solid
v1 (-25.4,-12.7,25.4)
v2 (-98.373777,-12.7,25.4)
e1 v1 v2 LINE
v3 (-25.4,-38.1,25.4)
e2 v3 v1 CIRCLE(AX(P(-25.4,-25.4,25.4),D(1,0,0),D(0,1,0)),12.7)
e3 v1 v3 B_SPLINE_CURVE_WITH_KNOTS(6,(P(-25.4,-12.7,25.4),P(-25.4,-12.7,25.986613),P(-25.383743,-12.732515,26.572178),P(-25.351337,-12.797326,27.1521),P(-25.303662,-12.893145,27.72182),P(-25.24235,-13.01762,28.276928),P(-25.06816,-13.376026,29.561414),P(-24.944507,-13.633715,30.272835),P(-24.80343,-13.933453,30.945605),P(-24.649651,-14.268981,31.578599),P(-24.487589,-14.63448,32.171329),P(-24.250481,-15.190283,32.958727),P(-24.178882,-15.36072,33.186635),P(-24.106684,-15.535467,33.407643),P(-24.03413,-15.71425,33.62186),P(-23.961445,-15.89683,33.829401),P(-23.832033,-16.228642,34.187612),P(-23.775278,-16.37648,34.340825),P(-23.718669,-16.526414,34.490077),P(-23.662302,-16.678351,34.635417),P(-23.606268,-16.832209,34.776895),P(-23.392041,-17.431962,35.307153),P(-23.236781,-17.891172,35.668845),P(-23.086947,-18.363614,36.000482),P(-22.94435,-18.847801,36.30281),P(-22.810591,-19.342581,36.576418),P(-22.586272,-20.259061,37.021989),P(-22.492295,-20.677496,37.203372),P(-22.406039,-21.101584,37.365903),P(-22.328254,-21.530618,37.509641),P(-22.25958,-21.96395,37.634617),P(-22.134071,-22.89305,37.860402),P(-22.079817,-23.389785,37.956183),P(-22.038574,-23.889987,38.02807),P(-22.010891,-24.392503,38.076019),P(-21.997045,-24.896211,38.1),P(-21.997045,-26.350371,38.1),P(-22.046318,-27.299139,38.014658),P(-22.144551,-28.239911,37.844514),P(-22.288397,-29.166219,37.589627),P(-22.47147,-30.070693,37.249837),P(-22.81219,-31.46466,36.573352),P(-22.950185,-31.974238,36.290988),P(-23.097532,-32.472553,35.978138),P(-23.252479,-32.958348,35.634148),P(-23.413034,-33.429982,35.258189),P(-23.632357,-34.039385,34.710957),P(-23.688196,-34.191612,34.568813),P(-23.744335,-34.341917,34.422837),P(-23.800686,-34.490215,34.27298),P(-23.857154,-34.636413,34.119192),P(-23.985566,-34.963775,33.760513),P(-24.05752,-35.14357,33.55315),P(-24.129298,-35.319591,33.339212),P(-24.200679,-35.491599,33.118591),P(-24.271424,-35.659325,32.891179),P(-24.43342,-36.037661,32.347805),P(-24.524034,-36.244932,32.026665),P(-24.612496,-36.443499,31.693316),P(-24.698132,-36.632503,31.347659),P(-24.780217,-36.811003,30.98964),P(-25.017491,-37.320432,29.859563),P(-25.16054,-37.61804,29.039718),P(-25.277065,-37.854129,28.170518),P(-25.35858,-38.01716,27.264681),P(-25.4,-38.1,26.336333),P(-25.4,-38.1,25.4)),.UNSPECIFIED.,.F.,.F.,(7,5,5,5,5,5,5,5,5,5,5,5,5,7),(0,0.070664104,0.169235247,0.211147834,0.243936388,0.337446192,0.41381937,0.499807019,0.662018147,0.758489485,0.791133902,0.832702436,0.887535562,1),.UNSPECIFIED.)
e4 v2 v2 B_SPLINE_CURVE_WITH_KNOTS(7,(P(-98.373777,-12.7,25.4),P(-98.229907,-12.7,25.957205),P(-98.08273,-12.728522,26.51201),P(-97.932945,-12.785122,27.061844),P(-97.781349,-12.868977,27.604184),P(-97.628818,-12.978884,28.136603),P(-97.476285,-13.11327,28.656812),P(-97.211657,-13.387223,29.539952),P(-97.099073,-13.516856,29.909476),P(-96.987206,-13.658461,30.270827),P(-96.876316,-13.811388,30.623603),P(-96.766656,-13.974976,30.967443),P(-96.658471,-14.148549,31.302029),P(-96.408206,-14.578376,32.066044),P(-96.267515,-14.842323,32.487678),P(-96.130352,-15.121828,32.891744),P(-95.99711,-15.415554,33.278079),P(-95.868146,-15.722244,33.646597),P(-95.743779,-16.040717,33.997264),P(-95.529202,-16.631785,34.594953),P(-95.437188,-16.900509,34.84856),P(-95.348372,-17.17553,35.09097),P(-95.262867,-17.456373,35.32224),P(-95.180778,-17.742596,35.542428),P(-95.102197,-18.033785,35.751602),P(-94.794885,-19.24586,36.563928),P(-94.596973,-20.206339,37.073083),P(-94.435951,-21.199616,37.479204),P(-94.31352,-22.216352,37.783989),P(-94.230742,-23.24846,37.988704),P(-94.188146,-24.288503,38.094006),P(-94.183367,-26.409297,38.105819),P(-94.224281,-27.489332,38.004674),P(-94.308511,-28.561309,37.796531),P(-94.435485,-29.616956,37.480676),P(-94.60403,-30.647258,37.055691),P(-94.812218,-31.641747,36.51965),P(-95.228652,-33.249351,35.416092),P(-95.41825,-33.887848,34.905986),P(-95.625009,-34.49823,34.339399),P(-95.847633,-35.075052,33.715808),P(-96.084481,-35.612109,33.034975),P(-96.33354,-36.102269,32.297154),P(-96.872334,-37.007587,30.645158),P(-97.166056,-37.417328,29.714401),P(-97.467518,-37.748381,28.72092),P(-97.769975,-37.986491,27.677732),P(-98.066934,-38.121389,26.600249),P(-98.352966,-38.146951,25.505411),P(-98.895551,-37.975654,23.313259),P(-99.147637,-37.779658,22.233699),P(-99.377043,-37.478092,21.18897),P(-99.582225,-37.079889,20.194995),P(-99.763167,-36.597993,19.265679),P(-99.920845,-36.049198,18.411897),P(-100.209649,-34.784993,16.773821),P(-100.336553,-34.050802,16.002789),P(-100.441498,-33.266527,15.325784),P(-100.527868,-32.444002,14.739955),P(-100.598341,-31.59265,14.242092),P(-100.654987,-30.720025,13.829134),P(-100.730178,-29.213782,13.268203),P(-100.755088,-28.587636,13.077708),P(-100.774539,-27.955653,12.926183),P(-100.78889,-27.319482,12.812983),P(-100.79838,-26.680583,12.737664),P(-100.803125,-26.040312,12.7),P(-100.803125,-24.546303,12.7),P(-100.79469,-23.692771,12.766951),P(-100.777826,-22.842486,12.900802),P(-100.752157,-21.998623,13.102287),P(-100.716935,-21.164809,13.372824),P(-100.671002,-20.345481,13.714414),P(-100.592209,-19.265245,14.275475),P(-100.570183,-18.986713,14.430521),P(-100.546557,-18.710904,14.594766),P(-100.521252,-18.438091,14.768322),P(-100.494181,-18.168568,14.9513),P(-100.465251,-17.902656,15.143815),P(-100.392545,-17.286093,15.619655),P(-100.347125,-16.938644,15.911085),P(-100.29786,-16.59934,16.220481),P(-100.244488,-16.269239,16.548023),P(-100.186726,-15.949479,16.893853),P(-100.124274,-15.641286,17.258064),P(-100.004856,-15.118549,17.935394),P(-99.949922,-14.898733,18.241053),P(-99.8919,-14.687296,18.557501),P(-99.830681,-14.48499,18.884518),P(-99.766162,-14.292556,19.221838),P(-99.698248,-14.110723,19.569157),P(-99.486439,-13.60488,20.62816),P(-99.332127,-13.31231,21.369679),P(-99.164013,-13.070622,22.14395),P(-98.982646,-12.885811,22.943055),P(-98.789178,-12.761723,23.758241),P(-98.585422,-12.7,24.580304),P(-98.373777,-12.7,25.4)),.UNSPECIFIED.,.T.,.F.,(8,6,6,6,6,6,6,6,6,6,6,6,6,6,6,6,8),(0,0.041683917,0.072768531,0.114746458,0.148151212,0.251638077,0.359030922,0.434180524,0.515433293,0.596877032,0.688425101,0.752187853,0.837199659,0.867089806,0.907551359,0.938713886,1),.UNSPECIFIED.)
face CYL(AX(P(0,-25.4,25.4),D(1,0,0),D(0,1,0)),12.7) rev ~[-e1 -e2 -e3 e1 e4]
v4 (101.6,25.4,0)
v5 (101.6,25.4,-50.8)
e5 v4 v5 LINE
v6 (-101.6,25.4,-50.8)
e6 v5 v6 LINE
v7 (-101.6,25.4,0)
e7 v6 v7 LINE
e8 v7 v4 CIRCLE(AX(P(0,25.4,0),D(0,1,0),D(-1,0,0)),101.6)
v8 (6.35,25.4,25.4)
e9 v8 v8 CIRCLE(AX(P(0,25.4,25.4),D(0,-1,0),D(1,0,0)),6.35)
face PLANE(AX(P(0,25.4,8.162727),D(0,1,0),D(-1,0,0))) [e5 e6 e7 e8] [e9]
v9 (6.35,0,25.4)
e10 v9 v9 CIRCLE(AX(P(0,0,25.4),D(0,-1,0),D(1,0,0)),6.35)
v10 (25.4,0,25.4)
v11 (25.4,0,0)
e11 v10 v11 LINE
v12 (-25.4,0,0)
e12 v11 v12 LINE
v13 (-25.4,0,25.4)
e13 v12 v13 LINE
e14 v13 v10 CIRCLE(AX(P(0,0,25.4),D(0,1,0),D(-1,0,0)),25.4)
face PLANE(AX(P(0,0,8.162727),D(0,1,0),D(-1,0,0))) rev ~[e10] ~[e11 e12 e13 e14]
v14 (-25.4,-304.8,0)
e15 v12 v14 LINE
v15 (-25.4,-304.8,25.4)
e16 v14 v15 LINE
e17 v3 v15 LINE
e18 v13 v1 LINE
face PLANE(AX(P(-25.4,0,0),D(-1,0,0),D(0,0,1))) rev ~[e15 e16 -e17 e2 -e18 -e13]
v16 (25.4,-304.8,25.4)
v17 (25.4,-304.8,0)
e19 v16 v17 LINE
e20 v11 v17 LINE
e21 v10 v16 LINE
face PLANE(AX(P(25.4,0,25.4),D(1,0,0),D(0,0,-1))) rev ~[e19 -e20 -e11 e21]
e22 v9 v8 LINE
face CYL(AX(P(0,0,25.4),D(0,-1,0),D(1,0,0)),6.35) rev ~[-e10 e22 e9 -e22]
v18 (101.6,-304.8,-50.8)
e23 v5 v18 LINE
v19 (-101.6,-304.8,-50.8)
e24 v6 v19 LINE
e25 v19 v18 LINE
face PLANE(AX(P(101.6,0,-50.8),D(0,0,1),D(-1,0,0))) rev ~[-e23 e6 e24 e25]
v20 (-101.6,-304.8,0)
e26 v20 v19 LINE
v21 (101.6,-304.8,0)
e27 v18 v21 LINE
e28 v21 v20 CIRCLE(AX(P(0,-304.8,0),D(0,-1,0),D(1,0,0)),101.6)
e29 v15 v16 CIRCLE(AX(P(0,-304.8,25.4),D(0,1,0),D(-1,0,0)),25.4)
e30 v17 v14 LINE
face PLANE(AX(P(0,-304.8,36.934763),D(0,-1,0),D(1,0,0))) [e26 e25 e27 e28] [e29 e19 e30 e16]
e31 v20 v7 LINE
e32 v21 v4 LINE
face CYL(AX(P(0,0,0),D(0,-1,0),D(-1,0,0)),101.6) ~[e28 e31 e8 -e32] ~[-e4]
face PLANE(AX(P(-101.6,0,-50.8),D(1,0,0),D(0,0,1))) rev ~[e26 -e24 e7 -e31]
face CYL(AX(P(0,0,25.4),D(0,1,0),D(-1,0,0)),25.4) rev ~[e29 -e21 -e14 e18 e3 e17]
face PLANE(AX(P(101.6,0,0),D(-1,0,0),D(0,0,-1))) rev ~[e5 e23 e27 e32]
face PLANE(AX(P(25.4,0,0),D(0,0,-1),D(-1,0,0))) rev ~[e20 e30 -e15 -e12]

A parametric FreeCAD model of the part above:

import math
import FreeCAD as App
import Part
import Sketcher
from FreeCAD import Vector
Q = App.Units.Quantity

doc = App.newDocument("Part")
body = doc.addObject("PartDesign::Body", "Body")

# Sketch on XZ plane
sketch1 = doc.addObject("Sketcher::SketchObject", "Sketch")
body.addObject(sketch1)
sketch1.AttachmentSupport = (doc.XZ_Plane, [""])
sketch1.MapMode = "FlatFace"
sketch1.addGeometry(Part.ArcOfCircle(Part.Circle(Vector(0, 0, 0), Vector(0, 0, 1), 101.6), math.radians(0), math.radians(180)), False)
sketch1.addGeometry(Part.LineSegment(Vector(-101.6, 0, 0), Vector(-101.6, -50.8, 0)), False)
sketch1.addGeometry(Part.LineSegment(Vector(-101.6, -50.8, 0), Vector(101.6, -50.8, 0)), False)
sketch1.addGeometry(Part.LineSegment(Vector(101.6, -50.8, 0), Vector(101.6, 0, 0)), False)
sketch1.addGeometry(Part.ArcOfCircle(Part.Circle(Vector(0, 25.4, 0), Vector(0, 0, 1), 25.4), math.radians(0), math.radians(180)), False)
sketch1.addGeometry(Part.LineSegment(Vector(25.4, 25.4, 0), Vector(25.4, 0, 0)), False)
sketch1.addGeometry(Part.LineSegment(Vector(25.4, 0, 0), Vector(-25.4, 0, 0)), False)
sketch1.addGeometry(Part.LineSegment(Vector(-25.4, 0, 0), Vector(-25.4, 25.4, 0)), False)
sketch1.addConstraint(Sketcher.Constraint("Tangent", 0, 2, 1, 1))
sketch1.addConstraint(Sketcher.Constraint("Coincident", 1, 2, 2, 1))
sketch1.addConstraint(Sketcher.Constraint("Coincident", 2, 2, 3, 1))
sketch1.addConstraint(Sketcher.Constraint("Tangent", 3, 2, 0, 1))
sketch1.addConstraint(Sketcher.Constraint("Tangent", 4, 1, 5, 1))
sketch1.addConstraint(Sketcher.Constraint("Coincident", 5, 2, 6, 1))
sketch1.addConstraint(Sketcher.Constraint("Coincident", 6, 2, 7, 1))
sketch1.addConstraint(Sketcher.Constraint("Tangent", 7, 2, 4, 2))
sketch1.addConstraint(Sketcher.Constraint("Vertical", 1))
sketch1.addConstraint(Sketcher.Constraint("Horizontal", 2))
sketch1.addConstraint(Sketcher.Constraint("Vertical", 3))
sketch1.addConstraint(Sketcher.Constraint("Vertical", 5))
sketch1.addConstraint(Sketcher.Constraint("Horizontal", 6))
sketch1.addConstraint(Sketcher.Constraint("Vertical", 7))
sketch1.addConstraint(Sketcher.Constraint("Coincident", 0, 3, -1, 1))
sketch1.addConstraint(Sketcher.Constraint("Symmetric", 5, 2, 6, 2, -1, 1))
sketch1.addConstraint(Sketcher.Constraint("Equal", 6, 1))
sketch1.addConstraint(Sketcher.Constraint("Radius", 0, Q("4 in")))
sketch1.addConstraint(Sketcher.Constraint("Radius", 4, Q("1 in")))
sketch1.addConstraint(Sketcher.Constraint("DistanceY", 5, 2, 5, 1, Q("1 in")))
pad1 = doc.addObject("PartDesign::Pad", "Pad")
body.addObject(pad1)
pad1.Profile = sketch1
pad1.Length = Q("12 in")

# Sketch on XZ plane
sketch2 = doc.addObject("Sketcher::SketchObject", "Sketch001")
body.addObject(sketch2)
sketch2.AttachmentSupport = (doc.XZ_Plane, [""])
sketch2.MapMode = "FlatFace"
sketch2.addGeometry(Part.LineSegment(Vector(-101.6, -50.8, 0), Vector(-101.6, 0, 0)), False)
sketch2.addGeometry(Part.ArcOfCircle(Part.Circle(Vector(0, 0, 0), Vector(0, 0, 1), 101.6), math.radians(0), math.radians(180)), False)
sketch2.addGeometry(Part.LineSegment(Vector(101.6, 0, 0), Vector(101.6, -50.8, 0)), False)
sketch2.addGeometry(Part.LineSegment(Vector(101.6, -50.8, 0), Vector(-101.6, -50.8, 0)), False)
sketch2.addConstraint(Sketcher.Constraint("Tangent", 0, 2, 1, 2))
sketch2.addConstraint(Sketcher.Constraint("Tangent", 1, 1, 2, 1))
sketch2.addConstraint(Sketcher.Constraint("Coincident", 2, 2, 3, 1))
sketch2.addConstraint(Sketcher.Constraint("Coincident", 3, 2, 0, 1))
sketch2.addConstraint(Sketcher.Constraint("Vertical", 0))
sketch2.addConstraint(Sketcher.Constraint("Vertical", 2))
sketch2.addConstraint(Sketcher.Constraint("Horizontal", 3))
sketch2.addConstraint(Sketcher.Constraint("Coincident", 1, 3, -1, 1))
sketch2.addConstraint(Sketcher.Constraint("Radius", 1, Q("4 in")))
sketch2.addConstraint(Sketcher.Constraint("DistanceY", 0, 1, 0, 2, Q("2 in")))
pad2 = doc.addObject("PartDesign::Pad", "Pad001")
body.addObject(pad2)
pad2.Profile = sketch2
pad2.Length = Q("1 in")
pad2.Reversed = True

# Sketch on XZ plane
sketch3 = doc.addObject("Sketcher::SketchObject", "Sketch002")
body.addObject(sketch3)
sketch3.AttachmentSupport = (doc.XZ_Plane, [""])
sketch3.MapMode = "FlatFace"
sketch3.addGeometry(Part.Circle(Vector(0, 25.4, 0), Vector(0, 0, 1), 6.35), False)
sketch3.addConstraint(Sketcher.Constraint("PointOnObject", 0, 3, -2))
sketch3.addConstraint(Sketcher.Constraint("Diameter", 0, Q("0.5 in")))
sketch3.addConstraint(Sketcher.Constraint("DistanceY", -1, 1, 0, 3, Q("1 in")))
pocket1 = doc.addObject("PartDesign::Pocket", "Pocket")
body.addObject(pocket1)
pocket1.Profile = sketch3
pocket1.Type = "ThroughAll"

# Sketch on YZ plane
sketch4 = doc.addObject("Sketcher::SketchObject", "Sketch003")
body.addObject(sketch4)
sketch4.AttachmentSupport = (doc.YZ_Plane, [""])
sketch4.MapMode = "FlatFace"
sketch4.addGeometry(Part.Circle(Vector(-25.4, 25.4, 0), Vector(0, 0, 1), 12.7), False)
sketch4.addConstraint(Sketcher.Constraint("Diameter", 0, Q("1 in")))
sketch4.addConstraint(Sketcher.Constraint("DistanceX", 0, 3, -1, 1, Q("1 in")))
sketch4.addConstraint(Sketcher.Constraint("DistanceY", -1, 1, 0, 3, Q("1 in")))
pocket2 = doc.addObject("PartDesign::Pocket", "Pocket001")
body.addObject(pocket2)
pocket2.Profile = sketch4
pocket2.Type = "ThroughAll"

doc.recompute()
